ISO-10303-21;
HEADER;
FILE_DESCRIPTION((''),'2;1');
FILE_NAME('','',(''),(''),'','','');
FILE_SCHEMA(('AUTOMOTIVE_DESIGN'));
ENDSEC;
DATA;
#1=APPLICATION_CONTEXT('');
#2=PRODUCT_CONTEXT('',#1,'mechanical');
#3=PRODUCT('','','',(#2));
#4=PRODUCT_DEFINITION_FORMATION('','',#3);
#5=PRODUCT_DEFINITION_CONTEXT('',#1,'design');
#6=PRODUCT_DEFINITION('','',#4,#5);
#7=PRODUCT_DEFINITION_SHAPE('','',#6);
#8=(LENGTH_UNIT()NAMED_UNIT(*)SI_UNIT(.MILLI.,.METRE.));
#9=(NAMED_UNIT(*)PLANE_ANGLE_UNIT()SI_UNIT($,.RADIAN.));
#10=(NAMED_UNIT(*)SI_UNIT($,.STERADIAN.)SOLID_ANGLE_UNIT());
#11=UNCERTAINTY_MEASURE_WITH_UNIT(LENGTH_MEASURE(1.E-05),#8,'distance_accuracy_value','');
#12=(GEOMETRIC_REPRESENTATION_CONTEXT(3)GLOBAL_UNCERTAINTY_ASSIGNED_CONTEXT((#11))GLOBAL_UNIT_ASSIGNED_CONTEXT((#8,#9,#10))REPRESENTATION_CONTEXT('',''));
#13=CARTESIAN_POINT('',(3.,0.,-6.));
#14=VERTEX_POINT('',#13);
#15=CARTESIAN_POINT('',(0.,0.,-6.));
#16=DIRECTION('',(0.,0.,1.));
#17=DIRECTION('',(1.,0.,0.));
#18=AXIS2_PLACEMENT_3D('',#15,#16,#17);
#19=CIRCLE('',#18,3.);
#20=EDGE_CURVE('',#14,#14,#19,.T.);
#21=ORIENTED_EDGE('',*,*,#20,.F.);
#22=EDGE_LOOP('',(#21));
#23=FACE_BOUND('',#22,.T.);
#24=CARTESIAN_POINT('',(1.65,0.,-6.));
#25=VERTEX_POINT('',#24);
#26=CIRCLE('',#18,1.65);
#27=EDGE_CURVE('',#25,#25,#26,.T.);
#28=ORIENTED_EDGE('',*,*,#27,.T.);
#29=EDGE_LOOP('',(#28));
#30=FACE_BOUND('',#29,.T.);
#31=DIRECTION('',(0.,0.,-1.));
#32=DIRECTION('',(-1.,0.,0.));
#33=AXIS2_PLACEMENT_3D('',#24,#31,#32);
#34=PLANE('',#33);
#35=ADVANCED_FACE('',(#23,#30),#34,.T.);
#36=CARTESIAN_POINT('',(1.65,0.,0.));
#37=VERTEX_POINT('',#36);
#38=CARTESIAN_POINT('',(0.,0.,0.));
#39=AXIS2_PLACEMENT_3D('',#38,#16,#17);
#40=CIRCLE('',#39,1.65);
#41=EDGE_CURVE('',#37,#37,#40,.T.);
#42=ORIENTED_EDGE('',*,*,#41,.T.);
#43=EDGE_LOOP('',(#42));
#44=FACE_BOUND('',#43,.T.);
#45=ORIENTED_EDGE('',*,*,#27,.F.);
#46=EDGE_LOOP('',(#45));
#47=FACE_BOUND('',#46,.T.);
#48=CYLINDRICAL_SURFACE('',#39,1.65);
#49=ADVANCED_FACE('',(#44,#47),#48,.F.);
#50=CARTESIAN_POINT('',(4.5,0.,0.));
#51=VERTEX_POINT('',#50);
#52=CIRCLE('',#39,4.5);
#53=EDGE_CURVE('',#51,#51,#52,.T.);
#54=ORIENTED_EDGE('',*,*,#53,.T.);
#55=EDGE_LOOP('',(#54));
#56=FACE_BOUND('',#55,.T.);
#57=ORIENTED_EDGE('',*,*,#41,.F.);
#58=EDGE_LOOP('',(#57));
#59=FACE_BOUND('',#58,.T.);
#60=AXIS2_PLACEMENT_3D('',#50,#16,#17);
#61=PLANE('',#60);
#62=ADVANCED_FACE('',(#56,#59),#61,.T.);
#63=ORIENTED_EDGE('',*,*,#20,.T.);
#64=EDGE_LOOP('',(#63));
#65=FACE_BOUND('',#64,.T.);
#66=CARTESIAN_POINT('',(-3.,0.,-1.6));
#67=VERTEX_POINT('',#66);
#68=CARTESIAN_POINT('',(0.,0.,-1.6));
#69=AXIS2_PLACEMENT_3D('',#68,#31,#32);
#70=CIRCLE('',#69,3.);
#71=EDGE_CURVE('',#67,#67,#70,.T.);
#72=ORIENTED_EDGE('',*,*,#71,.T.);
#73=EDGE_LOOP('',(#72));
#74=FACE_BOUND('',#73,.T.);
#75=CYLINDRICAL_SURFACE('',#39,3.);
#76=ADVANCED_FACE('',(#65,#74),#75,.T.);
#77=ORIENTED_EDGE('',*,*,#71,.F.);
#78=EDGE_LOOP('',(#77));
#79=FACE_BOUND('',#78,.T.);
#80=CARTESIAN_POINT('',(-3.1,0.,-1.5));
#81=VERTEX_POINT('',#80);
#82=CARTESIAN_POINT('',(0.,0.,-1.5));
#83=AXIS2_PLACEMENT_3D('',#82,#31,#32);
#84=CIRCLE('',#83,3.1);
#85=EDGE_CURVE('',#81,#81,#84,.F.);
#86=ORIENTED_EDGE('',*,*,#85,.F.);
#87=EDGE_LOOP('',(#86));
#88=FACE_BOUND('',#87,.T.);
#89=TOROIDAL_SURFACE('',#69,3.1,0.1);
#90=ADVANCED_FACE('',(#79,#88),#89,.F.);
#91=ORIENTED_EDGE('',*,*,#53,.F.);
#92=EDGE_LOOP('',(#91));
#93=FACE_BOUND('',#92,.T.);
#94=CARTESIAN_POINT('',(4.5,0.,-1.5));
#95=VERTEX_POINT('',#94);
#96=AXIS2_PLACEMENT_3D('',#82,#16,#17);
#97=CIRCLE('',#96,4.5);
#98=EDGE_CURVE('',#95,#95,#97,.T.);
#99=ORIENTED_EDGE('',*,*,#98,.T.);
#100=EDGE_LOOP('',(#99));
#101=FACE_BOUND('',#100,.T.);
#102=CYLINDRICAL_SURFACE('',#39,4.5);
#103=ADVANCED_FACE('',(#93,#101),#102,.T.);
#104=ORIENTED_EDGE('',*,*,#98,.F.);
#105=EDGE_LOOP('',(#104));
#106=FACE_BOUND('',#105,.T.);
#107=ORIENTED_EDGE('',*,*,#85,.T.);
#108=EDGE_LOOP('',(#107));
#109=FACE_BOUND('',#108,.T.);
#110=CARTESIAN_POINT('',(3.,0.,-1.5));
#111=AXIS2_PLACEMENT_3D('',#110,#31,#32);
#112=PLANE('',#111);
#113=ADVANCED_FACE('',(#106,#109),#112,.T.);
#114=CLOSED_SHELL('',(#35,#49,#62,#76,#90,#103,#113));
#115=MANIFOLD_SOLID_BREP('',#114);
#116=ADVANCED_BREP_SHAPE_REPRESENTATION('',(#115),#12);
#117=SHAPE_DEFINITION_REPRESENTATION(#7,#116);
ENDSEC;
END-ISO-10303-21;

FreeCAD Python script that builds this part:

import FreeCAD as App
import Part
import Sketcher

V = App.Vector
Q = App.Units.Quantity


def edges_at(feature, points):
    """Names of the edges that pass closest to the given points."""
    edges = feature.Shape.Edges
    near = lambda p: min(range(len(edges)), key=lambda i: edges[i].distToShape(Part.Vertex(*p))[0])
    return sorted({f"Edge{near(p) + 1}" for p in points})

doc = App.newDocument("Part")
body = doc.addObject("PartDesign::Body", "Body")

sketch1 = doc.addObject("Sketcher::SketchObject", "Sketch")
body.addObject(sketch1)
sketch1.AttachmentSupport = (doc.XZ_Plane, [""])
sketch1.MapMode = "FlatFace"
sketch1.addGeometry(Part.LineSegment(V(1.65, -6, 0), V(1.65, 0, 0)), False)
sketch1.addGeometry(Part.LineSegment(V(1.65, 0, 0), V(4.5, 0, 0)), False)
sketch1.addGeometry(Part.LineSegment(V(4.5, 0, 0), V(4.5, -1.5, 0)), False)
sketch1.addGeometry(Part.LineSegment(V(4.5, -1.5, 0), V(3, -1.5, 0)), False)
sketch1.addGeometry(Part.LineSegment(V(3, -1.5, 0), V(3, -6, 0)), False)
sketch1.addGeometry(Part.LineSegment(V(3, -6, 0), V(1.65, -6, 0)), False)
sketch1.addConstraint(Sketcher.Constraint("Coincident", 0, 2, 1, 1))
sketch1.addConstraint(Sketcher.Constraint("Coincident", 1, 2, 2, 1))
sketch1.addConstraint(Sketcher.Constraint("Coincident", 2, 2, 3, 1))
sketch1.addConstraint(Sketcher.Constraint("Coincident", 3, 2, 4, 1))
sketch1.addConstraint(Sketcher.Constraint("Coincident", 4, 2, 5, 1))
sketch1.addConstraint(Sketcher.Constraint("Coincident", 5, 2, 0, 1))
sketch1.addConstraint(Sketcher.Constraint("Vertical", 0))
sketch1.addConstraint(Sketcher.Constraint("Horizontal", 1))
sketch1.addConstraint(Sketcher.Constraint("Vertical", 2))
sketch1.addConstraint(Sketcher.Constraint("Horizontal", 3))
sketch1.addConstraint(Sketcher.Constraint("Vertical", 4))
sketch1.addConstraint(Sketcher.Constraint("Horizontal", 5))
sketch1.addConstraint(Sketcher.Constraint("PointOnObject", 0, 2, -1))
sketch1.addConstraint(Sketcher.Constraint("Equal", 3, 2))
sketch1.addConstraint(Sketcher.Constraint("DistanceY", 0, 1, 0, 2, Q("6 mm")))
sketch1.addConstraint(Sketcher.Constraint("DistanceX", 3, 2, 3, 1, Q("1.5 mm")))
sketch1.addConstraint(Sketcher.Constraint("DistanceX", -1, 1, 3, 2, Q("3 mm")))
sketch1.addConstraint(Sketcher.Constraint("DistanceX", 1, 1, 1, 2, Q("2.85 mm")))
revolution = doc.addObject("PartDesign::Revolution", "Revolution")
body.addObject(revolution)
revolution.Profile = sketch1
revolution.ReferenceAxis = (sketch1, ["V_Axis"])
revolution.Angle = 360
doc.recompute()

fillet = doc.addObject("PartDesign::Fillet", "Fillet")
body.addObject(fillet)
fillet.Base = (revolution, edges_at(revolution, [(-3, 0, -1.5)]))
fillet.Radius = 0.1

doc.recompute()
